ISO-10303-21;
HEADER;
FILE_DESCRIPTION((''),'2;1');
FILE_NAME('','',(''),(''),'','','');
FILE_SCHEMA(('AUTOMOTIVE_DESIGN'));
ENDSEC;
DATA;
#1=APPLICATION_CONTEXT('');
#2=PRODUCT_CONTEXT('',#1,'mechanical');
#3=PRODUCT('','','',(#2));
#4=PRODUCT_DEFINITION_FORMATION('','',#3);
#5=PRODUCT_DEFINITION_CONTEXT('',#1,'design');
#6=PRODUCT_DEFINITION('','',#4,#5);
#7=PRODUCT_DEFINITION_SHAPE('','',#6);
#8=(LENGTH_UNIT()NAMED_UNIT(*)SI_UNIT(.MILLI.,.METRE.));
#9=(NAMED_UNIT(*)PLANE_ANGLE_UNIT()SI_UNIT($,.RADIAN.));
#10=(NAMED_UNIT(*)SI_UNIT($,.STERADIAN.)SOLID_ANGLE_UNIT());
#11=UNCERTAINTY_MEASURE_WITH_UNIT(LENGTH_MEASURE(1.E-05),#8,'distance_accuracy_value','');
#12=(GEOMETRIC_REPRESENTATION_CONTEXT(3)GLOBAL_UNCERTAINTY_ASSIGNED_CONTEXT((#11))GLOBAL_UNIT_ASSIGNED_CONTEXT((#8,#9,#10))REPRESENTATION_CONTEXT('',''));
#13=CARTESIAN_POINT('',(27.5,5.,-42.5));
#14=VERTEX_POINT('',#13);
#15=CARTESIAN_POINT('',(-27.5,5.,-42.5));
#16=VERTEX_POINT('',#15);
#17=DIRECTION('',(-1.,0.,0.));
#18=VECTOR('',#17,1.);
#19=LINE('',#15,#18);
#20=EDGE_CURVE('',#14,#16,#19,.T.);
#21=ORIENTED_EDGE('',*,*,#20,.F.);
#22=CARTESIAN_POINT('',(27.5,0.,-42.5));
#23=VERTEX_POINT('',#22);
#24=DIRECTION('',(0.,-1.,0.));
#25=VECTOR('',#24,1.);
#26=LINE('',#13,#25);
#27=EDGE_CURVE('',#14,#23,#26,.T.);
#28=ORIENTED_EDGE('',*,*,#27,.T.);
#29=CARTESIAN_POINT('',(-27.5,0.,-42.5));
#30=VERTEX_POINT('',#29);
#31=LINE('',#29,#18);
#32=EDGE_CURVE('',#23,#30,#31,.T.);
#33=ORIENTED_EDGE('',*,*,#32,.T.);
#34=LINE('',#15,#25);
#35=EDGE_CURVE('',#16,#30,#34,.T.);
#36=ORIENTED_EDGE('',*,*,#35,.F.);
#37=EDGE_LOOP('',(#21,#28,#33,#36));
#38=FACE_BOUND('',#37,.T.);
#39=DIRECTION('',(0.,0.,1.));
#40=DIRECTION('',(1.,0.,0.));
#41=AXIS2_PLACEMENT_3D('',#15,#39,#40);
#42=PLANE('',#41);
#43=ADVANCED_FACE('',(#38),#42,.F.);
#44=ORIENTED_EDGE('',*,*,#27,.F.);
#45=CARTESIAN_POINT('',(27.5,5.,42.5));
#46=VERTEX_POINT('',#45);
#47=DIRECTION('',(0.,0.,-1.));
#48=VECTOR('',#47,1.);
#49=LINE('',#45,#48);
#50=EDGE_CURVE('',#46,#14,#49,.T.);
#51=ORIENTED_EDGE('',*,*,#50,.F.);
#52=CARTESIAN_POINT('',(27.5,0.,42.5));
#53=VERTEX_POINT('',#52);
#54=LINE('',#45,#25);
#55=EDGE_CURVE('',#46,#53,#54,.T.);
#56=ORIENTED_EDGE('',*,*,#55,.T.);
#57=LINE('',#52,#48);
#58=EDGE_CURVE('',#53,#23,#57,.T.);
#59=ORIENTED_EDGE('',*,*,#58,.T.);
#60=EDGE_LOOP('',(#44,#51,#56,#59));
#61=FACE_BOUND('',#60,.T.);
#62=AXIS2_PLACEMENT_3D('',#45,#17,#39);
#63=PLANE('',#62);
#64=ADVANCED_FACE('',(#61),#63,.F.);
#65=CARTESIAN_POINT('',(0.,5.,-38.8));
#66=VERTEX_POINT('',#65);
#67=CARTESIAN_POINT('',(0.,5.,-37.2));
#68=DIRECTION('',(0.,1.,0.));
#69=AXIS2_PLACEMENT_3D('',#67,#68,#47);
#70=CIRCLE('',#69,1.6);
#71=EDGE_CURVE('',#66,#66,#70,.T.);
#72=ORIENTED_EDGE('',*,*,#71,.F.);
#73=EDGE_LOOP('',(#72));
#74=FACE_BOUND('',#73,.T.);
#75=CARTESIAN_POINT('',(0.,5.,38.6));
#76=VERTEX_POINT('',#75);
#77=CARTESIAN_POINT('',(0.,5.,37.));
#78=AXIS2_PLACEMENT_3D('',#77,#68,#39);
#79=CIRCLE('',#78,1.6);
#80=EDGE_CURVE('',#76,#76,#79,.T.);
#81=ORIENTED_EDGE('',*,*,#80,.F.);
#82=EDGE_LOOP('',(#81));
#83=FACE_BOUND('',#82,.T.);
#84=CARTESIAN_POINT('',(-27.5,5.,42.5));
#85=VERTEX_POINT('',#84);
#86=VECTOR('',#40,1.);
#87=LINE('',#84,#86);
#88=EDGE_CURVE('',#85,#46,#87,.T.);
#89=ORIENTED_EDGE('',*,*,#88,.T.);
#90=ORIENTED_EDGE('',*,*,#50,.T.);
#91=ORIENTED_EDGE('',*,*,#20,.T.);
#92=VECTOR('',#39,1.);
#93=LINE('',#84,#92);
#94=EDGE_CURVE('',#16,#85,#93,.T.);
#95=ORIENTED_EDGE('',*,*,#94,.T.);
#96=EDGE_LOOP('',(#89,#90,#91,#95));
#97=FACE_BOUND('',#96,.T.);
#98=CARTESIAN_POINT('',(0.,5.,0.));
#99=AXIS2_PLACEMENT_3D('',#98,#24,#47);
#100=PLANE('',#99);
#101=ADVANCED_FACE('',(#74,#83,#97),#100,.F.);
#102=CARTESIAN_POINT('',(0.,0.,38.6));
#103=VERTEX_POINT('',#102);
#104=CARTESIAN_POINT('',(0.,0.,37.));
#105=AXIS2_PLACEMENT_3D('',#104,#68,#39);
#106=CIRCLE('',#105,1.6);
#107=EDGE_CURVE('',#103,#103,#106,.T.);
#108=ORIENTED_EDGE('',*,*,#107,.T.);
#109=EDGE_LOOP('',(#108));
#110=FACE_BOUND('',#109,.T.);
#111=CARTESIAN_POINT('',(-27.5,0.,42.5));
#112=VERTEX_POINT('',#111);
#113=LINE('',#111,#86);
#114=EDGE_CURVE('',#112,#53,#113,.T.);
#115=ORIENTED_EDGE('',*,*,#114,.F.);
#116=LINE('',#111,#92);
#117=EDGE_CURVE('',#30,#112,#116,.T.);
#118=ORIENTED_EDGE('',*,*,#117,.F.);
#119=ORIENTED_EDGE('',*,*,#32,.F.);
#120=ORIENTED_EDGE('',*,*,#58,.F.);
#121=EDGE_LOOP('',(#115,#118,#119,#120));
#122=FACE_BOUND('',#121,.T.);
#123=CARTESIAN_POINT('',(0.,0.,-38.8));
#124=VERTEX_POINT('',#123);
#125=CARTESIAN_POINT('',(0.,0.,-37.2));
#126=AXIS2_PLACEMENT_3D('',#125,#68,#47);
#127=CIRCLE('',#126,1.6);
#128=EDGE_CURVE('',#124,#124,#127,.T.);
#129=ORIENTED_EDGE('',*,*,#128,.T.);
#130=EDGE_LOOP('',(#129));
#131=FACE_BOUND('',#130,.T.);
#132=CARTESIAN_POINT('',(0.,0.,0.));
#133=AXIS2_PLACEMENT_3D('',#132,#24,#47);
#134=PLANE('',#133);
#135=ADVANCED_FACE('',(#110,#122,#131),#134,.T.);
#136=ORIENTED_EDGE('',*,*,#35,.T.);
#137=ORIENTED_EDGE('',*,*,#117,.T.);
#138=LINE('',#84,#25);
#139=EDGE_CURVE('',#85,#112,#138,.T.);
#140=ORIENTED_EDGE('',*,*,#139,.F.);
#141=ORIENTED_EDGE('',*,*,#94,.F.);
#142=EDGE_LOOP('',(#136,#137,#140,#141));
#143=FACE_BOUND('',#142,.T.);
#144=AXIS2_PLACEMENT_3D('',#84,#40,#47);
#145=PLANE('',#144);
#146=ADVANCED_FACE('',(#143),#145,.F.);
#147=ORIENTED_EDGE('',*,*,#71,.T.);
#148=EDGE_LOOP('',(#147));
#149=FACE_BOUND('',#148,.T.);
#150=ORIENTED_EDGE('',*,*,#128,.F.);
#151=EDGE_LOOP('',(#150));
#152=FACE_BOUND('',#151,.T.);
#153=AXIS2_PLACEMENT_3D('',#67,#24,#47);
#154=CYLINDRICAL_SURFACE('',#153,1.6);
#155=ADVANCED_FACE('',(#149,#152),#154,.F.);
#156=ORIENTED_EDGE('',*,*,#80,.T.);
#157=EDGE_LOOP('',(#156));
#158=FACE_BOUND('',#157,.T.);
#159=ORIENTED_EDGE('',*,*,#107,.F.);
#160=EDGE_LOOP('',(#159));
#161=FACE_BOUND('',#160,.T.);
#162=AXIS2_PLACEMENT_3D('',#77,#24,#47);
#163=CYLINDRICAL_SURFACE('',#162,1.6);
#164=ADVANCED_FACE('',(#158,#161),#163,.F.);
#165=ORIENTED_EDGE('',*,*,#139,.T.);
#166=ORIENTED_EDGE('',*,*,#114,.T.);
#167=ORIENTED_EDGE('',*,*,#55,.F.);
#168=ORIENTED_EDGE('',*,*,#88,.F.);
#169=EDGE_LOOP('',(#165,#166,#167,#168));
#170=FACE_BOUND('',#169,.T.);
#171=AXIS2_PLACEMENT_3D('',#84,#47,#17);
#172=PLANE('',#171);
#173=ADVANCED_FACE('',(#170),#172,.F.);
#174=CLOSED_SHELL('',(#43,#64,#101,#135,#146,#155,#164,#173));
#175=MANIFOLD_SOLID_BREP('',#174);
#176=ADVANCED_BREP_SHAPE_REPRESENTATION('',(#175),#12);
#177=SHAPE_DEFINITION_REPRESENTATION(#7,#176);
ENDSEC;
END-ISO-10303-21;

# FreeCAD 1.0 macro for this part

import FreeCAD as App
import Part
import Sketcher

V = App.Vector

doc = App.newDocument("Part")
params = doc.addObject("Spreadsheet::Sheet", "Params")
for row, (alias, value) in enumerate([
    ("sketch1_diameter", "3.2 mm"),
    ("sketch1_width", "55 mm"),
    ("sketch1_height", "85 mm"),
    ("pad1_length", "5 mm"),
], start=1):
    params.set(f"A{row}", alias)
    params.set(f"B{row}", "=" + value)
    params.setAlias(f"B{row}", alias)

body = doc.addObject("PartDesign::Body", "Body")

# Sketch on XZ plane
sketch1 = doc.addObject("Sketcher::SketchObject", "Sketch")
body.addObject(sketch1)
sketch1.AttachmentSupport = (doc.XZ_Plane, [""])
sketch1.MapMode = "FlatFace"
sketch1.addGeometry(Part.LineSegment(V(-27.5, -42.5, 0), V(-27.5, 42.5, 0)), False)
sketch1.addGeometry(Part.LineSegment(V(-27.5, 42.5, 0), V(27.5, 42.5, 0)), False)
sketch1.addGeometry(Part.LineSegment(V(27.5, 42.5, 0), V(27.5, -42.5, 0)), False)
sketch1.addGeometry(Part.LineSegment(V(27.5, -42.5, 0), V(-27.5, -42.5, 0)), False)
sketch1.addGeometry(Part.Circle(V(0, 37, 0), V(0, 0, 1), 1.6), False)
sketch1.addGeometry(Part.Circle(V(0, -37.2, 0), V(0, 0, 1), 1.6), False)
sketch1.addConstraint(Sketcher.Constraint("Coincident", 0, 2, 1, 1))
sketch1.addConstraint(Sketcher.Constraint("Coincident", 1, 2, 2, 1))
sketch1.addConstraint(Sketcher.Constraint("Coincident", 2, 2, 3, 1))
sketch1.addConstraint(Sketcher.Constraint("Coincident", 3, 2, 0, 1))
sketch1.addConstraint(Sketcher.Constraint("Vertical", 0))
sketch1.addConstraint(Sketcher.Constraint("Horizontal", 1))
sketch1.addConstraint(Sketcher.Constraint("Vertical", 2))
sketch1.addConstraint(Sketcher.Constraint("Horizontal", 3))
sketch1.addConstraint(Sketcher.Constraint("Equal", 4, 5))
sketch1.addConstraint(Sketcher.Constraint("Symmetric", 0, 2, 2, 2, -1, 1))
sketch1.addConstraint(Sketcher.Constraint("PointOnObject", 4, 3, -2))
sketch1.addConstraint(Sketcher.Constraint("PointOnObject", 5, 3, -2))
sketch1.addConstraint(Sketcher.Constraint("Diameter", 4, 3.2))
sketch1.addConstraint(Sketcher.Constraint("DistanceX", 1, 1, 1, 2, 55.0))
sketch1.addConstraint(Sketcher.Constraint("DistanceY", 0, 1, 0, 2, 85.0))
sketch1.addConstraint(Sketcher.Constraint("DistanceY", -1, 1, 4, 3, 37.0))
sketch1.addConstraint(Sketcher.Constraint("DistanceY", 5, 3, -1, 1, 37.2))
sketch1.setExpression("Constraints[12]", "Params.sketch1_diameter")
sketch1.setExpression("Constraints[13]", "Params.sketch1_width")
sketch1.setExpression("Constraints[14]", "Params.sketch1_height")
pad1 = doc.addObject("PartDesign::Pad", "Pad")
body.addObject(pad1)
pad1.Profile = sketch1
pad1.setExpression("Length", "Params.pad1_length")
pad1.Reversed = True

doc.recompute()
